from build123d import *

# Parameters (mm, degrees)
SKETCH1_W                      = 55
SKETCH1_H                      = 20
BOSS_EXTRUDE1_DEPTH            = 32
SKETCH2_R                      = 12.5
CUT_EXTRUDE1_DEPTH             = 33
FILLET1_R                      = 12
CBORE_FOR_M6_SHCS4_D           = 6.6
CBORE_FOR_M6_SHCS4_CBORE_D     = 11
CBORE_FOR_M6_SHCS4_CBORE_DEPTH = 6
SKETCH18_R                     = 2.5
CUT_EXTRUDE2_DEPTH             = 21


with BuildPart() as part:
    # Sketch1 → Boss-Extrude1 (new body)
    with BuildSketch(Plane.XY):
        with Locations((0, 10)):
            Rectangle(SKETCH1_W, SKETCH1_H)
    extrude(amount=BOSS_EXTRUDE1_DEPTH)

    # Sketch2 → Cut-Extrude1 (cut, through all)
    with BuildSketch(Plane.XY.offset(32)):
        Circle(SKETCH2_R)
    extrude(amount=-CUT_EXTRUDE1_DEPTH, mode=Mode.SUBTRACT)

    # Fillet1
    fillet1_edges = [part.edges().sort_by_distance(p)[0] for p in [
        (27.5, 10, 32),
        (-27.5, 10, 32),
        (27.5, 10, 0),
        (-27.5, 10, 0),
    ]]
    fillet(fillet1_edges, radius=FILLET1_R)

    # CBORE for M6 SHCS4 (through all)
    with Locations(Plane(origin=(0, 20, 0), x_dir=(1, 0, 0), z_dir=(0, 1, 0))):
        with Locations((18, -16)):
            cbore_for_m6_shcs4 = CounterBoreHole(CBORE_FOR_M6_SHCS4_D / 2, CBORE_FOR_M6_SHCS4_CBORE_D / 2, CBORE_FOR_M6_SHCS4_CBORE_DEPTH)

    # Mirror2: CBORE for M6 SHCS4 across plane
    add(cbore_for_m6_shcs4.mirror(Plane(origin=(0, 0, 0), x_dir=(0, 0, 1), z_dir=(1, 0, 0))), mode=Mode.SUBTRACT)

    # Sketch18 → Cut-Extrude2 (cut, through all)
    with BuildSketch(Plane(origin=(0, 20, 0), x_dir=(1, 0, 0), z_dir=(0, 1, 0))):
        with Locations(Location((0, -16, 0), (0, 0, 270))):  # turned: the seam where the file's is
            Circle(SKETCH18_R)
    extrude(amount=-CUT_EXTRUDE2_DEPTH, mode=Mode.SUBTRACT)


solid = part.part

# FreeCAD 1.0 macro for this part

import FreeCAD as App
import Part
import Sketcher
Q = App.Units.Quantity


def edges_at(feature, points):
    """Names of the edges that pass closest to the given points."""
    edges = feature.Shape.Edges
    near = lambda p: min(range(len(edges)), key=lambda i: edges[i].distToShape(Part.Vertex(*p))[0])
    return sorted({f"Edge{near(p) + 1}" for p in points})

doc = App.newDocument("Part")
params = doc.addObject("Spreadsheet::Sheet", "Params")
for row, (alias, value) in enumerate([
    ("sketch1_width", "55 mm"),
    ("sketch1_height", "20 mm"),
    ("pad1_length", "32 mm"),
    ("sketch2_diameter", "25 mm"),
    ("fillet_radius", "12 mm"),
    ("sketch3_diameter", "6.6 mm"),
    ("hole_diameter", "6.6 mm"),
    ("hole_cbore_diameter", "11 mm"),
    ("hole_cbore_depth", "6 mm"),
    ("sketch4_diameter", "5 mm"),
], start=1):
    params.set(f"A{row}", alias)
    params.set(f"B{row}", "=" + value)
    params.setAlias(f"B{row}", alias)

body = doc.addObject("PartDesign::Body", "Body")

# Sketch on XY plane
sketch1 = doc.addObject("Sketcher::SketchObject", "Sketch")
body.addObject(sketch1)
sketch1.AttachmentSupport = (doc.XY_Plane, [""])
sketch1.MapMode = "FlatFace"
sketch1.addGeometry(Part.LineSegment(App.Vector(-28, 20, 0), App.Vector(-28, 0, 0)), False)
sketch1.addGeometry(Part.LineSegment(App.Vector(-28, 0, 0), App.Vector(28, 0, 0)), False)
sketch1.addGeometry(Part.LineSegment(App.Vector(28, 0, 0), App.Vector(28, 20, 0)), False)
sketch1.addGeometry(Part.LineSegment(App.Vector(28, 20, 0), App.Vector(-28, 20, 0)), False)
sketch1.addConstraint(Sketcher.Constraint("Coincident", 0, 2, 1, 1))
sketch1.addConstraint(Sketcher.Constraint("Coincident", 1, 2, 2, 1))
sketch1.addConstraint(Sketcher.Constraint("Coincident", 2, 2, 3, 1))
sketch1.addConstraint(Sketcher.Constraint("Coincident", 3, 2, 0, 1))
sketch1.addConstraint(Sketcher.Constraint("Vertical", 0))
sketch1.addConstraint(Sketcher.Constraint("Horizontal", 1))
sketch1.addConstraint(Sketcher.Constraint("Vertical", 2))
sketch1.addConstraint(Sketcher.Constraint("Horizontal", 3))
sketch1.addConstraint(Sketcher.Constraint("Symmetric", 0, 2, 1, 2, -1, 1))
sketch1.addConstraint(Sketcher.Constraint("DistanceX", 1, 1, 1, 2, Q("55 mm")))
sketch1.addConstraint(Sketcher.Constraint("DistanceY", 0, 2, 0, 1, Q("20 mm")))
sketch1.setExpression("Constraints[9]", "Params.sketch1_width")
sketch1.setExpression("Constraints[10]", "Params.sketch1_height")
pad1 = doc.addObject("PartDesign::Pad", "Pad")
body.addObject(pad1)
pad1.Profile = sketch1
pad1.setExpression("Length", "Params.pad1_length")

# Sketch on XY plane
sketch2 = doc.addObject("Sketcher::SketchObject", "Sketch001")
body.addObject(sketch2)
sketch2.AttachmentSupport = (doc.XY_Plane, [""])
sketch2.MapMode = "FlatFace"
sketch2.AttachmentOffset = App.Placement(App.Vector(0, 0, 32), App.Rotation())
sketch2.addGeometry(Part.Circle(App.Vector(0, 0, 0), App.Vector(0, 0, 1), 12), False)
sketch2.addConstraint(Sketcher.Constraint("Coincident", 0, 3, -1, 1))
sketch2.addConstraint(Sketcher.Constraint("Diameter", 0, Q("25 mm")))
sketch2.setExpression("Constraints[1]", "Params.sketch2_diameter")
pocket1 = doc.addObject("PartDesign::Pocket", "Pocket")
body.addObject(pocket1)
pocket1.Profile = sketch2
pocket1.Type = "ThroughAll"
doc.recompute()

fillet = doc.addObject("PartDesign::Fillet", "Fillet")
body.addObject(fillet)
fillet.Base = (pocket1, edges_at(pocket1, [
    (27.5, 10, 32),
    (-27.5, 10, 32),
    (27.5, 10, 0),
    (-27.5, 10, 0),
]))
fillet.setExpression("Radius", "Params.fillet_radius")

# Sketch on XZ plane
sketch3 = doc.addObject("Sketcher::SketchObject", "Sketch002")
body.addObject(sketch3)
sketch3.AttachmentSupport = (doc.XZ_Plane, [""])
sketch3.MapMode = "FlatFace"
sketch3.AttachmentOffset = App.Placement(App.Vector(0, 0, -20), App.Rotation())
sketch3.addGeometry(Part.Circle(App.Vector(18, 16, 0), App.Vector(0, 0, 1), 3.3), False)
sketch3.addConstraint(Sketcher.Constraint("Diameter", 0, Q("6.6 mm")))
sketch3.addConstraint(Sketcher.Constraint("DistanceX", -1, 1, 0, 3, Q("18 mm")))
sketch3.addConstraint(Sketcher.Constraint("DistanceY", -1, 1, 0, 3, Q("16 mm")))
sketch3.setExpression("Constraints[0]", "Params.sketch3_diameter")
doc.recompute()
hole = doc.addObject("PartDesign::Hole", "Hole")
body.addObject(hole)
hole.Profile = sketch3
hole.ThreadType = "None"
hole.setExpression("Diameter", "Params.hole_diameter")
hole.DepthType = "ThroughAll"
hole.HoleCutType = "Counterbore"
hole.setExpression("HoleCutDiameter", "Params.hole_cbore_diameter")
hole.setExpression("HoleCutDepth", "Params.hole_cbore_depth")
hole.Reversed = True
doc.recompute()

mirrored = doc.addObject("PartDesign::Mirrored", "Mirrored")
body.addObject(mirrored)
mirrored.Originals = [hole]
mirrored.MirrorPlane = (doc.YZ_Plane, [""])
body.Tip = mirrored

# Sketch on XZ plane
sketch4 = doc.addObject("Sketcher::SketchObject", "Sketch003")
body.addObject(sketch4)
sketch4.AttachmentSupport = (doc.XZ_Plane, [""])
sketch4.MapMode = "FlatFace"
sketch4.AttachmentOffset = App.Placement(App.Vector(0, 0, -20), App.Rotation())
sketch4.addGeometry(Part.Circle(App.Vector(0, 16, 0), App.Vector(0, 0, 1), 2.5), False)
sketch4.addConstraint(Sketcher.Constraint("PointOnObject", 0, 3, -2))
sketch4.addConstraint(Sketcher.Constraint("Diameter", 0, Q("5 mm")))
sketch4.addConstraint(Sketcher.Constraint("DistanceY", -1, 1, 0, 3, Q("16 mm")))
sketch4.setExpression("Constraints[1]", "Params.sketch4_diameter")
pocket2 = doc.addObject("PartDesign::Pocket", "Pocket001")
body.addObject(pocket2)
pocket2.Profile = sketch4
pocket2.Type = "ThroughAll"
pocket2.Reversed = True

doc.recompute()
